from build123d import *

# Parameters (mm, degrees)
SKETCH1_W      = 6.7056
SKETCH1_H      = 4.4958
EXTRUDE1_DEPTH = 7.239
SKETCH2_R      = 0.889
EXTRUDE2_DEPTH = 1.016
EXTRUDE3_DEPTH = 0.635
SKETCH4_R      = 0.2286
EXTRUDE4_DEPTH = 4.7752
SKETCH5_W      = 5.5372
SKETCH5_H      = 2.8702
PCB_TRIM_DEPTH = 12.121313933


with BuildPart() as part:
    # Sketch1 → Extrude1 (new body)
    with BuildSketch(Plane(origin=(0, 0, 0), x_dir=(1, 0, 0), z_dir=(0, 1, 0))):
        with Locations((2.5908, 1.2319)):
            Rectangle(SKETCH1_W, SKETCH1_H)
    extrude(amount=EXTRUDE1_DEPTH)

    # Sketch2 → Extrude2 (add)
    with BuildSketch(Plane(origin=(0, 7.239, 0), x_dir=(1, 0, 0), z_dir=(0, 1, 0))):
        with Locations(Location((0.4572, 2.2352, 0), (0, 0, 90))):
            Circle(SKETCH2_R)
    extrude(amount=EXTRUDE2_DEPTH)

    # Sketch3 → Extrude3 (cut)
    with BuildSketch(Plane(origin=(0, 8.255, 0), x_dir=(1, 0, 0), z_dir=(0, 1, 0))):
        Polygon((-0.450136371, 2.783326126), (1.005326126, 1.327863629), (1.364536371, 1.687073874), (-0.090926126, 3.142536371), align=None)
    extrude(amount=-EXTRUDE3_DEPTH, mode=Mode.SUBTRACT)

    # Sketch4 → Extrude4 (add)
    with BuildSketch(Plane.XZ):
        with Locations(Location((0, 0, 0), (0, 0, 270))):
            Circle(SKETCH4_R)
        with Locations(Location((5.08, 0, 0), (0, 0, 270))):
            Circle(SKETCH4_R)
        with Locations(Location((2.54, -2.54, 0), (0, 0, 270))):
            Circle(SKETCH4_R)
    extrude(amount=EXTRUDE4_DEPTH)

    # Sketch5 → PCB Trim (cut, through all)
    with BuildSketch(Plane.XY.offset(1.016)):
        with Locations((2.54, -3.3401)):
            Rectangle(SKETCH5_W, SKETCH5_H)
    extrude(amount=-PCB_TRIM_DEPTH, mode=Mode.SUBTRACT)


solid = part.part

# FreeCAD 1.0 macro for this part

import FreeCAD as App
import Part
import Sketcher
from FreeCAD import Vector
Q = App.Units.Quantity

doc = App.newDocument("Part")
body = doc.addObject("PartDesign::Body", "Body")

# Sketch on XZ plane
sketch1 = body.newObject("Sketcher::SketchObject", "Sketch")
sketch1.AttachmentSupport = (doc.getObject("XZ_Plane"), [""])
sketch1.MapMode = "FlatFace"
sketch1.addGeometry([
    Part.LineSegment(Vector(-0.762, -3.4798, 0), Vector(-0.762, 1.016, 0)),
    Part.LineSegment(Vector(-0.762, 1.016, 0), Vector(5.9436, 1.016, 0)),
    Part.LineSegment(Vector(5.9436, 1.016, 0), Vector(5.9436, -3.4798, 0)),
    Part.LineSegment(Vector(5.9436, -3.4798, 0), Vector(-0.762, -3.4798, 0)),
], False)
sketch1.addConstraint([
    Sketcher.Constraint("Coincident", 0, 2, 1, 1),
    Sketcher.Constraint("Coincident", 1, 2, 2, 1),
    Sketcher.Constraint("Coincident", 2, 2, 3, 1),
    Sketcher.Constraint("Coincident", 3, 2, 0, 1),
    Sketcher.Constraint("Vertical", 0),
    Sketcher.Constraint("Horizontal", 1),
    Sketcher.Constraint("Vertical", 2),
    Sketcher.Constraint("Horizontal", 3),
    Sketcher.Constraint("DistanceX", 1, 1, 1, 2, Q("0.264 in")),
    Sketcher.Constraint("DistanceY", 0, 1, 0, 2, Q("0.177 in")),
    Sketcher.Constraint("DistanceX", 0, 2, -1, 1, Q("0.03 in")),
    Sketcher.Constraint("DistanceY", -1, 1, 0, 2, Q("0.04 in")),
])
pad1 = body.newObject("PartDesign::Pad", "Pad")
pad1.Profile = sketch1
pad1.Length = Q("0.285 in")
pad1.Reversed = True

# Sketch on XZ plane
sketch2 = body.newObject("Sketcher::SketchObject", "Sketch001")
sketch2.AttachmentSupport = (doc.getObject("XZ_Plane"), [""])
sketch2.MapMode = "FlatFace"
sketch2.AttachmentOffset = App.Placement(Vector(0, 0, -0.285 * 25.4), App.Rotation())
sketch2.addGeometry(Part.Circle(Vector(0.4572, -2.2352, 0), Vector(0, 0, 1), 0.889), False)
sketch2.addConstraint([
    Sketcher.Constraint("Diameter", 0, Q("0.07 in")),
    Sketcher.Constraint("DistanceX", -1, 1, 0, 3, Q("0.018 in")),
    Sketcher.Constraint("DistanceY", 0, 3, -1, 1, Q("0.088 in")),
])
pad2 = body.newObject("PartDesign::Pad", "Pad001")
pad2.Profile = sketch2
pad2.Length = Q("0.04 in")
pad2.Reversed = True

# Sketch on XZ plane
sketch3 = body.newObject("Sketcher::SketchObject", "Sketch002")
sketch3.AttachmentSupport = (doc.getObject("XZ_Plane"), [""])
sketch3.MapMode = "FlatFace"
sketch3.AttachmentOffset = App.Placement(Vector(0, 0, -0.325 * 25.4), App.Rotation())
sketch3.addGeometry([
    Part.LineSegment(Vector(-0.450136, -2.783326, 0), Vector(1.005326, -1.327864, 0)),
    Part.LineSegment(Vector(1.005326, -1.327864, 0), Vector(1.364536, -1.687074, 0)),
    Part.LineSegment(Vector(1.364536, -1.687074, 0), Vector(-0.090926, -3.142536, 0)),
    Part.LineSegment(Vector(-0.090926, -3.142536, 0), Vector(-0.450136, -2.783326, 0)),
], False)
sketch3.addConstraint([
    Sketcher.Constraint("Coincident", 0, 2, 1, 1),
    Sketcher.Constraint("Coincident", 1, 2, 2, 1),
    Sketcher.Constraint("Coincident", 2, 2, 3, 1),
    Sketcher.Constraint("Coincident", 3, 2, 0, 1),
    Sketcher.Constraint("Perpendicular", 0, 1),
    Sketcher.Constraint("Perpendicular", 1, 2),
    Sketcher.Constraint("Perpendicular", 2, 3),
    Sketcher.Constraint("Angle", 0, Q("45 deg")),
    Sketcher.Constraint("Distance", 1, Q("0.02 in")),
    Sketcher.Constraint("Distance", 0, Q("2.058335 mm")),
    Sketcher.Constraint("DistanceX", -1, 1, 0, 2, Q("1.005326 mm")),
    Sketcher.Constraint("DistanceY", 0, 2, -1, 1, Q("1.327864 mm")),
])
pocket1 = body.newObject("PartDesign::Pocket", "Pocket")
pocket1.Profile = sketch3
pocket1.Length = Q("0.025 in")
pocket1.Reversed = True

# Sketch on XZ plane
sketch4 = body.newObject("Sketcher::SketchObject", "Sketch003")
sketch4.AttachmentSupport = (doc.getObject("XZ_Plane"), [""])
sketch4.MapMode = "FlatFace"
sketch4.addGeometry([
    Part.Circle(Vector(0, 0, 0), Vector(0, 0, 1), 0.2286),
    Part.Circle(Vector(5.08, 0, 0), Vector(0, 0, 1), 0.2286),
    Part.Circle(Vector(2.54, -2.54, 0), Vector(0, 0, 1), 0.2286),
], False)
sketch4.addConstraint([
    Sketcher.Constraint("Coincident", 0, 3, -1, 1),
    Sketcher.Constraint("Equal", 0, 1),
    Sketcher.Constraint("Equal", 1, 2),
    Sketcher.Constraint("PointOnObject", 1, 3, -1),
    Sketcher.Constraint("Diameter", 0, Q("0.018 in")),
    Sketcher.Constraint("DistanceX", -1, 1, 1, 3, Q("0.2 in")),
    Sketcher.Constraint("DistanceX", -1, 1, 2, 3, Q("0.1 in")),
    Sketcher.Constraint("DistanceY", 2, 3, -1, 1, Q("0.1 in")),
])
pad3 = body.newObject("PartDesign::Pad", "Pad002")
pad3.Profile = sketch4
pad3.Length = Q("0.188 in")

# Sketch on XY plane
sketch5 = body.newObject("Sketcher::SketchObject", "Sketch004")
sketch5.AttachmentSupport = (doc.getObject("XY_Plane"), [""])
sketch5.MapMode = "FlatFace"
sketch5.AttachmentOffset = App.Placement(Vector(0, 0, 0.04 * 25.4), App.Rotation())
sketch5.addGeometry([
    Part.LineSegment(Vector(-0.2286, -1.905, 0), Vector(-0.2286, -4.7752, 0)),
    Part.LineSegment(Vector(-0.2286, -4.7752, 0), Vector(5.3086, -4.7752, 0)),
    Part.LineSegment(Vector(5.3086, -4.7752, 0), Vector(5.3086, -1.905, 0)),
    Part.LineSegment(Vector(5.3086, -1.905, 0), Vector(-0.2286, -1.905, 0)),
], False)
sketch5.addConstraint([
    Sketcher.Constraint("Coincident", 0, 2, 1, 1),
    Sketcher.Constraint("Coincident", 1, 2, 2, 1),
    Sketcher.Constraint("Coincident", 2, 2, 3, 1),
    Sketcher.Constraint("Coincident", 3, 2, 0, 1),
    Sketcher.Constraint("Vertical", 0),
    Sketcher.Constraint("Horizontal", 1),
    Sketcher.Constraint("Vertical", 2),
    Sketcher.Constraint("Horizontal", 3),
    Sketcher.Constraint("DistanceX", 1, 1, 1, 2, Q("0.218 in")),
    Sketcher.Constraint("DistanceY", 0, 2, 0, 1, Q("0.113 in")),
    Sketcher.Constraint("DistanceX", 0, 2, -1, 1, Q("0.009 in")),
    Sketcher.Constraint("DistanceY", 0, 2, -1, 1, Q("0.188 in")),
])
pocket2 = body.newObject("PartDesign::Pocket", "Pocket001")
pocket2.Profile = sketch5
pocket2.Type = "ThroughAll"

doc.recompute()
